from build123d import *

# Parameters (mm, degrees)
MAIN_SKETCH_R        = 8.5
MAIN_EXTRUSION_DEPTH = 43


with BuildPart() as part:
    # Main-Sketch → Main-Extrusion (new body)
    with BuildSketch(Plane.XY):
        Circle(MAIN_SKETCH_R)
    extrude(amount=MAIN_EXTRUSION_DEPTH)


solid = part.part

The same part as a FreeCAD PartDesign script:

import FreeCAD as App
import Part
import Sketcher
Q = App.Units.Quantity

doc = App.newDocument("Part")
params = doc.addObject("Spreadsheet::Sheet", "Params")
for row, (alias, value) in enumerate([
    ("sketch1_diameter", "17 mm"),
    ("pad1_length", "43 mm"),
], start=1):
    params.set(f"A{row}", alias)
    params.set(f"B{row}", "=" + value)
    params.setAlias(f"B{row}", alias)

body = doc.addObject("PartDesign::Body", "Body")

sketch1 = body.newObject("Sketcher::SketchObject", "Sketch")
sketch1.AttachmentSupport = (doc.getObject("XY_Plane"), [""])
sketch1.MapMode = "FlatFace"
sketch1.addGeometry(Part.Circle(App.Vector(0, 0, 0), App.Vector(0, 0, 1), 8), False)
sketch1.addConstraint([
    Sketcher.Constraint("Coincident", 0, 3, -1, 1),
    Sketcher.Constraint("Diameter", 0, Q("17 mm")),
])
sketch1.setExpression("Constraints[1]", "Params.sketch1_diameter")
pad1 = body.newObject("PartDesign::Pad", "Pad")
pad1.Profile = sketch1
pad1.setExpression("Length", "Params.pad1_length")

doc.recompute()
